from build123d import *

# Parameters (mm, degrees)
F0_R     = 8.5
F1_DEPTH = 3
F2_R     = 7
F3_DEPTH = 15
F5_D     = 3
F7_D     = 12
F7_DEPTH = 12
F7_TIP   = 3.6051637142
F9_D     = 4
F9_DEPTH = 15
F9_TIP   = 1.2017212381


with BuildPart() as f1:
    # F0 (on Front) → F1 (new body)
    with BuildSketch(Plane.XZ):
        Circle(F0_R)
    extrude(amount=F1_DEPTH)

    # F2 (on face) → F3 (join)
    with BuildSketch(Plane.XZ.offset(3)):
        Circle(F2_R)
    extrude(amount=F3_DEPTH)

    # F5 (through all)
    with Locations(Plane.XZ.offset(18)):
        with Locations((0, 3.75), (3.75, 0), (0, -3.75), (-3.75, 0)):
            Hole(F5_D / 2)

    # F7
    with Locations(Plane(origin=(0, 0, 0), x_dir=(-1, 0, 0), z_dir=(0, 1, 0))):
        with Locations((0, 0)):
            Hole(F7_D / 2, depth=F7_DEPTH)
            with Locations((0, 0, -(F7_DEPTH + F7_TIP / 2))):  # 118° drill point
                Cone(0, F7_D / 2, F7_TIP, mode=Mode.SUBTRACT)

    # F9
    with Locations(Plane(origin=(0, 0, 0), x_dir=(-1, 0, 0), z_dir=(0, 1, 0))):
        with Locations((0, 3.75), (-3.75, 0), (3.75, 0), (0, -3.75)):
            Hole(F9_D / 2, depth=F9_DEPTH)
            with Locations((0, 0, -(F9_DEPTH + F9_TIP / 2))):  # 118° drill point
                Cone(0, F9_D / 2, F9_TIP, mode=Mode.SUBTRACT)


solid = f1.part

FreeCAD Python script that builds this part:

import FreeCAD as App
import Part
import Sketcher

doc = App.newDocument("Part")
body = doc.addObject("PartDesign::Body", "Body")

# Sketch on XZ plane
sketch1 = body.newObject("Sketcher::SketchObject", "Sketch")
sketch1.AttachmentSupport = (doc.getObject("XZ_Plane"), [""])
sketch1.MapMode = "FlatFace"
sketch1.addGeometry(Part.Circle(App.Vector(0, 0, 0), App.Vector(0, 0, 1), 8.5), False)
sketch1.addConstraint(Sketcher.Constraint("Coincident", 0, 3, -1, 1))
sketch1.addConstraint(Sketcher.Constraint("Diameter", 0, 17.0))
pad1 = body.newObject("PartDesign::Pad", "Pad")
pad1.Profile = sketch1
pad1.Length = 3

# Sketch on XZ plane
sketch2 = body.newObject("Sketcher::SketchObject", "Sketch001")
sketch2.AttachmentSupport = (doc.getObject("XZ_Plane"), [""])
sketch2.MapMode = "FlatFace"
sketch2.AttachmentOffset = App.Placement(App.Vector(0, 0, 3), App.Rotation())
sketch2.addGeometry(Part.Circle(App.Vector(0, 0, 0), App.Vector(0, 0, 1), 7), False)
sketch2.addConstraint(Sketcher.Constraint("Coincident", 0, 3, -1, 1))
sketch2.addConstraint(Sketcher.Constraint("Diameter", 0, 14.0))
pad2 = body.newObject("PartDesign::Pad", "Pad001")
pad2.Profile = sketch2
pad2.Length = 15

# Sketch on XZ plane
sketch3 = body.newObject("Sketcher::SketchObject", "Sketch002")
sketch3.AttachmentSupport = (doc.getObject("XZ_Plane"), [""])
sketch3.MapMode = "FlatFace"
sketch3.AttachmentOffset = App.Placement(App.Vector(0, 0, 18), App.Rotation())
sketch3.addGeometry(Part.Circle(App.Vector(0, 3.75, 0), App.Vector(0, 0, 1), 1.5), False)
sketch3.addGeometry(Part.Circle(App.Vector(3.75, 0, 0), App.Vector(0, 0, 1), 1.5), False)
sketch3.addGeometry(Part.Circle(App.Vector(0, -3.75, 0), App.Vector(0, 0, 1), 1.5), False)
sketch3.addGeometry(Part.Circle(App.Vector(-3.75, 0, 0), App.Vector(0, 0, 1), 1.5), False)
sketch3.addConstraint(Sketcher.Constraint("Equal", 0, 1))
sketch3.addConstraint(Sketcher.Constraint("Equal", 1, 2))
sketch3.addConstraint(Sketcher.Constraint("Equal", 2, 3))
sketch3.addConstraint(Sketcher.Constraint("Symmetric", 0, 3, 2, 3, -1, 1))
sketch3.addConstraint(Sketcher.Constraint("Symmetric", 1, 3, 3, 3, -1, 1))
sketch3.addConstraint(Sketcher.Constraint("PointOnObject", 0, 3, -2))
sketch3.addConstraint(Sketcher.Constraint("PointOnObject", 1, 3, -1))
sketch3.addConstraint(Sketcher.Constraint("Diameter", 0, 3.0))
sketch3.addConstraint(Sketcher.Constraint("DistanceY", 2, 3, 0, 3, 7.5))
sketch3.addConstraint(Sketcher.Constraint("DistanceX", 3, 3, 1, 3, 7.5))
doc.recompute()
hole = body.newObject("PartDesign::Hole", "Hole")
hole.Profile = sketch3
hole.ThreadType = "None"
hole.Diameter = 3
hole.DepthType = "ThroughAll"

# Sketch on XZ plane
sketch4 = body.newObject("Sketcher::SketchObject", "Sketch003")
sketch4.AttachmentSupport = (doc.getObject("XZ_Plane"), [""])
sketch4.MapMode = "FlatFace"
sketch4.addGeometry(Part.Circle(App.Vector(0, 0, 0), App.Vector(0, 0, 1), 6), False)
sketch4.addConstraint(Sketcher.Constraint("Coincident", 0, 3, -1, 1))
sketch4.addConstraint(Sketcher.Constraint("Diameter", 0, 12.0))
doc.recompute()
hole2 = body.newObject("PartDesign::Hole", "Hole001")
hole2.Profile = sketch4
hole2.ThreadType = "None"
hole2.Diameter = 12
hole2.DepthType = "Dimension"
hole2.Depth = 12
hole2.DrillPoint = "Angled"
hole2.DrillPointAngle = 118
hole2.Reversed = True

# Sketch on XZ plane
sketch5 = body.newObject("Sketcher::SketchObject", "Sketch004")
sketch5.AttachmentSupport = (doc.getObject("XZ_Plane"), [""])
sketch5.MapMode = "FlatFace"
sketch5.addGeometry(Part.Circle(App.Vector(0, 3.75, 0), App.Vector(0, 0, 1), 2), False)
sketch5.addGeometry(Part.Circle(App.Vector(3.75, 0, 0), App.Vector(0, 0, 1), 2), False)
sketch5.addGeometry(Part.Circle(App.Vector(-3.75, 0, 0), App.Vector(0, 0, 1), 2), False)
sketch5.addGeometry(Part.Circle(App.Vector(0, -3.75, 0), App.Vector(0, 0, 1), 2), False)
sketch5.addConstraint(Sketcher.Constraint("Equal", 0, 1))
sketch5.addConstraint(Sketcher.Constraint("Equal", 1, 2))
sketch5.addConstraint(Sketcher.Constraint("Equal", 2, 3))
sketch5.addConstraint(Sketcher.Constraint("Symmetric", 1, 3, 2, 3, -1, 1))
sketch5.addConstraint(Sketcher.Constraint("Symmetric", 0, 3, 3, 3, -1, 1))
sketch5.addConstraint(Sketcher.Constraint("PointOnObject", 0, 3, -2))
sketch5.addConstraint(Sketcher.Constraint("PointOnObject", 1, 3, -1))
sketch5.addConstraint(Sketcher.Constraint("Diameter", 0, 4.0))
sketch5.addConstraint(Sketcher.Constraint("DistanceX", 2, 3, 1, 3, 7.5))
sketch5.addConstraint(Sketcher.Constraint("DistanceY", 3, 3, 0, 3, 7.5))
doc.recompute()
hole3 = body.newObject("PartDesign::Hole", "Hole002")
hole3.Profile = sketch5
hole3.ThreadType = "None"
hole3.Diameter = 4
hole3.DepthType = "Dimension"
hole3.Depth = 15
hole3.DrillPoint = "Angled"
hole3.DrillPointAngle = 118
hole3.Reversed = True

doc.recompute()
